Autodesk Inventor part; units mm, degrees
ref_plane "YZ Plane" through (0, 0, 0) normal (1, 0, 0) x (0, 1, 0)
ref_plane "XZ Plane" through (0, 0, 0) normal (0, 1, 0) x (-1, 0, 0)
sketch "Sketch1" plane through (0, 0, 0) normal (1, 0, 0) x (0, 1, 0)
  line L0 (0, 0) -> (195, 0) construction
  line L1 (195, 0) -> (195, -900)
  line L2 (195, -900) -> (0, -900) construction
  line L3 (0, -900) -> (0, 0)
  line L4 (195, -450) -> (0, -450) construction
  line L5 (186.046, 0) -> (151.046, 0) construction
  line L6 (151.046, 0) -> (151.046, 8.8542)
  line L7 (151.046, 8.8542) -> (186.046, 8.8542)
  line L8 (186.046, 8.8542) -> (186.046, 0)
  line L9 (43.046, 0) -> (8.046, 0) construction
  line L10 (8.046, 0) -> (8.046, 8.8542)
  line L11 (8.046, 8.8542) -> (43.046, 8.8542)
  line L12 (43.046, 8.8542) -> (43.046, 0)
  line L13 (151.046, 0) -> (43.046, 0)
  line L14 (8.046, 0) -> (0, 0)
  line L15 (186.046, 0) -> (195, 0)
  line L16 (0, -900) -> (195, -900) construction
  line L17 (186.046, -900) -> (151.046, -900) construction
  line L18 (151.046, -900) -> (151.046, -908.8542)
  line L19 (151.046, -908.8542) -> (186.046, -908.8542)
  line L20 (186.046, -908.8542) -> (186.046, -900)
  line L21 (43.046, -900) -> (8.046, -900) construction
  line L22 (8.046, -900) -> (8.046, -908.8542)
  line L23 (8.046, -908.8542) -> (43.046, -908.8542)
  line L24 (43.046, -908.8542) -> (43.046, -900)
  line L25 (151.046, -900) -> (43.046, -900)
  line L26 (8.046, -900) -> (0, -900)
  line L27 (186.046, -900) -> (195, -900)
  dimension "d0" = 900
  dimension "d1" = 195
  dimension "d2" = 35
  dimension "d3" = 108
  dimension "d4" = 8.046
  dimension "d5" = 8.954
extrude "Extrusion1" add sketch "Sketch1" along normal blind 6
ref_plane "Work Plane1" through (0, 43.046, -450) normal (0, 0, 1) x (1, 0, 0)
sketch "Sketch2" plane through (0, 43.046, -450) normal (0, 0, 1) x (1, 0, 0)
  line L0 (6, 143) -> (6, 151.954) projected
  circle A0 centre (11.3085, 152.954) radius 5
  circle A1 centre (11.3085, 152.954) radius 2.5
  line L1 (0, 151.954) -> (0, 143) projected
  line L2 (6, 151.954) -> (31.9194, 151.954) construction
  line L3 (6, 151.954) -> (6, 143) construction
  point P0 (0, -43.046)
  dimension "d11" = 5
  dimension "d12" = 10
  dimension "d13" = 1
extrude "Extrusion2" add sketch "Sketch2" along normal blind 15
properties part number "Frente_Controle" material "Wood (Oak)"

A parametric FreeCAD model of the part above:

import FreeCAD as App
import Part
import Sketcher

V = App.Vector
Q = App.Units.Quantity


def add_polygon(sketch, points):
    """Adds a closed chain of lines whose ends are joined by coincident constraints."""
    first, n = sketch.GeometryCount, len(points)
    for a, b in zip(points, points[1:] + points[:1]):
        sketch.addGeometry(Part.LineSegment(App.Vector(*a, 0), App.Vector(*b, 0)), False)
    for i in range(n):
        sketch.addConstraint(Sketcher.Constraint("Coincident", first + i, 2, first + (i + 1) % n, 1))

doc = App.newDocument("Part")
body = doc.addObject("PartDesign::Body", "Body")
body.AllowCompound = True

# Sketch on YZ plane
sketch1 = body.newObject("Sketcher::SketchObject", "Sketch")
sketch1.AttachmentSupport = (doc.getObject("YZ_Plane"), [""])
sketch1.MapMode = "FlatFace"
add_polygon(sketch1, [(195, -900), (195, 0), (186, 0), (186, 9), (151, 9), (151, 0), (43, 0), (43, 9), (8, 9), (8, 0), (0, 0), (0, -900), (8, -900), (8, -909), (43, -909), (43, -900), (151, -900), (151, -909), (186, -909), (186, -900)])  # lines 0-19
sketch1.addConstraint([
    Sketcher.Constraint("Vertical", 0),
    Sketcher.Constraint("Horizontal", 1),
    Sketcher.Constraint("Vertical", 2),
    Sketcher.Constraint("Horizontal", 3),
    Sketcher.Constraint("Vertical", 4),
    Sketcher.Constraint("Horizontal", 5),
    Sketcher.Constraint("Vertical", 6),
    Sketcher.Constraint("Horizontal", 7),
    Sketcher.Constraint("Vertical", 8),
    Sketcher.Constraint("Horizontal", 9),
    Sketcher.Constraint("Vertical", 10),
    Sketcher.Constraint("Horizontal", 11),
    Sketcher.Constraint("Vertical", 12),
    Sketcher.Constraint("Horizontal", 13),
    Sketcher.Constraint("Vertical", 14),
    Sketcher.Constraint("Horizontal", 15),
    Sketcher.Constraint("Vertical", 16),
    Sketcher.Constraint("Horizontal", 17),
    Sketcher.Constraint("Vertical", 18),
    Sketcher.Constraint("Horizontal", 19),
    Sketcher.Constraint("Coincident", 9, 2, -1, 1),
    Sketcher.Constraint("PointOnObject", 0, 2, -1),
    Sketcher.Constraint("PointOnObject", 4, 2, -1),
    Sketcher.Constraint("Horizontal", 3, 2, 6, 2),
    Sketcher.Constraint("Horizontal", 11, 2, 14, 2),
    Sketcher.Constraint("Horizontal", 13, 2, 16, 2),
    Sketcher.Constraint("Horizontal", 15, 2, 18, 2),
    Sketcher.Constraint("Vertical", 8, 2, 11, 2),
    Sketcher.Constraint("Vertical", 6, 2, 13, 2),
    Sketcher.Constraint("Vertical", 4, 2, 15, 2),
    Sketcher.Constraint("Vertical", 2, 2, 17, 2),
    Sketcher.Constraint("Equal", 3, 7),
    Sketcher.Constraint("Equal", 8, 12),
    Sketcher.Constraint("DistanceX", 3, 2, 3, 1, Q("35 mm")),
    Sketcher.Constraint("DistanceX", 5, 2, 5, 1, Q("108 mm")),
    Sketcher.Constraint("DistanceY", 0, 1, 0, 2, Q("900 mm")),
    Sketcher.Constraint("DistanceX", -1, 1, 0, 2, Q("195 mm")),
    Sketcher.Constraint("DistanceX", 1, 2, 1, 1, Q("8.954 mm")),
    Sketcher.Constraint("DistanceY", 2, 1, 2, 2, Q("8.8542 mm")),
])
pad1 = body.newObject("PartDesign::Pad", "Pad")
pad1.Profile = sketch1
pad1.Length = 6

# Sketch on XY plane
sketch2 = body.newObject("Sketcher::SketchObject", "Sketch001")
sketch2.AttachmentSupport = (doc.getObject("XY_Plane"), [""])
sketch2.MapMode = "FlatFace"
sketch2.AttachmentOffset = App.Placement(V(0, 0, -450), App.Rotation())
sketch2.addGeometry([
    Part.Circle(V(11.3, 196, 0), V(0, 0, 1), 5),
    Part.Circle(V(11.3, 196, 0), V(0, 0, 1), 2.5),
], False)
sketch2.addConstraint([
    Sketcher.Constraint("Coincident", 1, 3, 0, 3),
    Sketcher.Constraint("Diameter", 0, Q("10 mm")),
    Sketcher.Constraint("Diameter", 1, Q("5 mm")),
    Sketcher.Constraint("DistanceY", -1, 1, 0, 3, Q("196 mm")),
    Sketcher.Constraint("DistanceX", -1, 1, 0, 3, Q("11.3085 mm")),
])
pad2 = body.newObject("PartDesign::Pad", "Pad001")
pad2.Profile = sketch2
pad2.Length = 15

doc.recompute()
